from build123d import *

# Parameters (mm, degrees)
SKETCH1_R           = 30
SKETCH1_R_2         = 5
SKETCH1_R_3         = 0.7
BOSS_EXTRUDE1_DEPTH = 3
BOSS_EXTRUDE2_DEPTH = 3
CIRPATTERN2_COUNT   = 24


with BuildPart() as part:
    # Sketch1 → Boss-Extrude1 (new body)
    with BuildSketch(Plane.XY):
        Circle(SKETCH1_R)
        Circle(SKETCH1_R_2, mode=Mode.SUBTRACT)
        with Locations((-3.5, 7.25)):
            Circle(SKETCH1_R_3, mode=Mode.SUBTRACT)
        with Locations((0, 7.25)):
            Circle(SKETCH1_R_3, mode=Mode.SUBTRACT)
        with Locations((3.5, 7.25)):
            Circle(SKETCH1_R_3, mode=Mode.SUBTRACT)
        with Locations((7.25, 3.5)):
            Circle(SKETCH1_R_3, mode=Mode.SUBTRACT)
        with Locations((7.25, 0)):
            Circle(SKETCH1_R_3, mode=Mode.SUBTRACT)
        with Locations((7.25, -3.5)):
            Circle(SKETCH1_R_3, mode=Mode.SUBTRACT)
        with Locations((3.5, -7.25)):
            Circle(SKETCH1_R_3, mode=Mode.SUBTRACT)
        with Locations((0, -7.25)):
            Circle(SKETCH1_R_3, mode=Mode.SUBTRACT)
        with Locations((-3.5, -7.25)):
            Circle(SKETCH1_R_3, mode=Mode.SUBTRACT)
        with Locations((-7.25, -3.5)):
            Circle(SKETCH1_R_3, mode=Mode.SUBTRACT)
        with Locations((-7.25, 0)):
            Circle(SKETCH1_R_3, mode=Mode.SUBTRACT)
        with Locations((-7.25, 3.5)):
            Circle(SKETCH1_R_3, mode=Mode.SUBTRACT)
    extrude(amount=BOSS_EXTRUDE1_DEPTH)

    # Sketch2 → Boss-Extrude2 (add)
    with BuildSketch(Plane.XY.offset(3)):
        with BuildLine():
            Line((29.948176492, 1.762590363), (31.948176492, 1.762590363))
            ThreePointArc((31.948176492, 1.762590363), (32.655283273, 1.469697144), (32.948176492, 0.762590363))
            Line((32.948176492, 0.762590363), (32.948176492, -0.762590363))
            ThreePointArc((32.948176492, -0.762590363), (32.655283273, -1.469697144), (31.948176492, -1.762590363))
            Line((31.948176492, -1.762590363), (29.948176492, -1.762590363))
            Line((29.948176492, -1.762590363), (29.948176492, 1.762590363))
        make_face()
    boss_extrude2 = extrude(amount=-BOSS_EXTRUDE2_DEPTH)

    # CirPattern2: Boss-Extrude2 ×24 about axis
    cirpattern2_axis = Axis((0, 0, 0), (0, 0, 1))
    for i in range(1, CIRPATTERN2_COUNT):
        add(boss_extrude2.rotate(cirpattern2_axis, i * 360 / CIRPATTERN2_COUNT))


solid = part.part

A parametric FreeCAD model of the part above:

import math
import FreeCAD as App
import Part
import Sketcher
from FreeCAD import Vector

doc = App.newDocument("Part")
body = doc.addObject("PartDesign::Body", "Body")

# Sketch on XY plane
sketch1 = body.newObject("Sketcher::SketchObject", "Sketch")
sketch1.AttachmentSupport = (doc.getObject("XY_Plane"), [""])
sketch1.MapMode = "FlatFace"
sketch1.addGeometry(Part.Circle(Vector(0, 0, 0), Vector(0, 0, 1), 30), False)
sketch1.addGeometry(Part.Circle(Vector(-3.5, -7.2, 0), Vector(0, 0, 1), 0.7), False)
sketch1.addGeometry(Part.Circle(Vector(-7.2, -3.5, 0), Vector(0, 0, 1), 0.7), False)
sketch1.addGeometry(Part.Circle(Vector(0, -7.2, 0), Vector(0, 0, 1), 0.7), False)
sketch1.addGeometry(Part.Circle(Vector(3.5, -7.2, 0), Vector(0, 0, 1), 0.7), False)
sketch1.addGeometry(Part.Circle(Vector(7.2, -3.5, 0), Vector(0, 0, 1), 0.7), False)
sketch1.addGeometry(Part.Circle(Vector(-7.2, 0, 0), Vector(0, 0, 1), 0.7), False)
sketch1.addGeometry(Part.Circle(Vector(-7.2, 3.5, 0), Vector(0, 0, 1), 0.7), False)
sketch1.addGeometry(Part.Circle(Vector(-3.5, 7.2, 0), Vector(0, 0, 1), 0.7), False)
sketch1.addGeometry(Part.Circle(Vector(0, 0, 0), Vector(0, 0, 1), 5), False)
sketch1.addGeometry(Part.Circle(Vector(7.2, 0, 0), Vector(0, 0, 1), 0.7), False)
sketch1.addGeometry(Part.Circle(Vector(7.2, 3.5, 0), Vector(0, 0, 1), 0.7), False)
sketch1.addGeometry(Part.Circle(Vector(0, 7.2, 0), Vector(0, 0, 1), 0.7), False)
sketch1.addGeometry(Part.Circle(Vector(3.5, 7.2, 0), Vector(0, 0, 1), 0.7), False)
sketch1.addConstraint(Sketcher.Constraint("Coincident", 0, 3, -1, 1))
sketch1.addConstraint(Sketcher.Constraint("Coincident", 9, 3, -1, 1))
sketch1.addConstraint(Sketcher.Constraint("Equal", 1, 2))
sketch1.addConstraint(Sketcher.Constraint("Equal", 2, 3))
sketch1.addConstraint(Sketcher.Constraint("Equal", 3, 4))
sketch1.addConstraint(Sketcher.Constraint("Equal", 4, 5))
sketch1.addConstraint(Sketcher.Constraint("Equal", 5, 6))
sketch1.addConstraint(Sketcher.Constraint("Equal", 6, 7))
sketch1.addConstraint(Sketcher.Constraint("Equal", 7, 8))
sketch1.addConstraint(Sketcher.Constraint("Equal", 8, 10))
sketch1.addConstraint(Sketcher.Constraint("Equal", 10, 11))
sketch1.addConstraint(Sketcher.Constraint("Equal", 11, 12))
sketch1.addConstraint(Sketcher.Constraint("Equal", 12, 13))
sketch1.addConstraint(Sketcher.Constraint("Symmetric", 5, 3, 7, 3, -1, 1))
sketch1.addConstraint(Sketcher.Constraint("Symmetric", 4, 3, 8, 3, -1, 1))
sketch1.addConstraint(Sketcher.Constraint("Symmetric", 6, 3, 10, 3, -1, 1))
sketch1.addConstraint(Sketcher.Constraint("Symmetric", 2, 3, 11, 3, -1, 1))
sketch1.addConstraint(Sketcher.Constraint("Symmetric", 3, 3, 12, 3, -1, 1))
sketch1.addConstraint(Sketcher.Constraint("Symmetric", 1, 3, 13, 3, -1, 1))
sketch1.addConstraint(Sketcher.Constraint("Symmetric", 1, 3, 4, 3, -2))
sketch1.addConstraint(Sketcher.Constraint("Symmetric", 2, 3, 5, 3, -2))
sketch1.addConstraint(Sketcher.Constraint("PointOnObject", 3, 3, -2))
sketch1.addConstraint(Sketcher.Constraint("PointOnObject", 6, 3, -1))
sketch1.addConstraint(Sketcher.Constraint("Horizontal", 1, 3, 3, 3))
sketch1.addConstraint(Sketcher.Constraint("Vertical", 2, 3, 6, 3))
sketch1.addConstraint(Sketcher.Constraint("Diameter", 0, 60.0))
sketch1.addConstraint(Sketcher.Constraint("Diameter", 9, 10.0))
sketch1.addConstraint(Sketcher.Constraint("Diameter", 1, 1.4))
sketch1.addConstraint(Sketcher.Constraint("DistanceX", 1, 3, 4, 3, 7.0))
sketch1.addConstraint(Sketcher.Constraint("DistanceY", 2, 3, 7, 3, 7.0))
sketch1.addConstraint(Sketcher.Constraint("DistanceX", 2, 3, 5, 3, 14.5))
sketch1.addConstraint(Sketcher.Constraint("DistanceY", 1, 3, 8, 3, 14.5))
pad1 = body.newObject("PartDesign::Pad", "Pad")
pad1.Profile = sketch1
pad1.Length = 3

# Sketch on XY plane
sketch2 = body.newObject("Sketcher::SketchObject", "Sketch001")
sketch2.AttachmentSupport = (doc.getObject("XY_Plane"), [""])
sketch2.MapMode = "FlatFace"
sketch2.AttachmentOffset = App.Placement(Vector(0, 0, 3), App.Rotation())
sketch2.addGeometry(Part.LineSegment(Vector(31.9, 1.8, 0), Vector(29.9, 1.8, 0)), False)
sketch2.addGeometry(Part.LineSegment(Vector(29.9, 1.8, 0), Vector(29.9, -1.8, 0)), False)
sketch2.addGeometry(Part.LineSegment(Vector(29.9, -1.8, 0), Vector(31.9, -1.8, 0)), False)
sketch2.addGeometry(Part.ArcOfCircle(Part.Circle(Vector(31.9, -0.8, 0), Vector(0, 0, 1), 1), math.radians(-90), math.radians(0)), False)
sketch2.addGeometry(Part.LineSegment(Vector(32.9, -0.8, 0), Vector(32.9, 0.8, 0)), False)
sketch2.addGeometry(Part.ArcOfCircle(Part.Circle(Vector(31.9, 0.8, 0), Vector(0, 0, 1), 1), math.radians(0), math.radians(90)), False)
sketch2.addConstraint(Sketcher.Constraint("Coincident", 0, 2, 1, 1))
sketch2.addConstraint(Sketcher.Constraint("Coincident", 1, 2, 2, 1))
sketch2.addConstraint(Sketcher.Constraint("Tangent", 2, 2, 3, 1))
sketch2.addConstraint(Sketcher.Constraint("Tangent", 3, 2, 4, 1))
sketch2.addConstraint(Sketcher.Constraint("Tangent", 4, 2, 5, 1))
sketch2.addConstraint(Sketcher.Constraint("Tangent", 5, 2, 0, 1))
sketch2.addConstraint(Sketcher.Constraint("Horizontal", 0))
sketch2.addConstraint(Sketcher.Constraint("Vertical", 1))
sketch2.addConstraint(Sketcher.Constraint("Horizontal", 2))
sketch2.addConstraint(Sketcher.Constraint("Vertical", 4))
sketch2.addConstraint(Sketcher.Constraint("Equal", 3, 5))
sketch2.addConstraint(Sketcher.Constraint("Radius", 3, 1.0))
sketch2.addConstraint(Sketcher.Constraint("DistanceX", 0, 2, 0, 1, 2.0))
sketch2.addConstraint(Sketcher.Constraint("DistanceY", 1, 2, 1, 1, 3.525181))
sketch2.addConstraint(Sketcher.Constraint("DistanceY", 3, 3, -1, 1, 0.76259))
sketch2.addConstraint(Sketcher.Constraint("DistanceX", -1, 1, 3, 3, 31.948176))
pad2 = body.newObject("PartDesign::Pad", "Pad001")
pad2.Profile = sketch2
pad2.Length = 3
pad2.Reversed = True
doc.recompute()

polarpattern = body.newObject("PartDesign::PolarPattern", "PolarPattern")
polarpattern.Originals = [pad2]
polarpattern.Axis = (doc.getObject("Z_Axis"), [""])
polarpattern.Angle = 360
polarpattern.Occurrences = 24
body.Tip = polarpattern

doc.recompute()
